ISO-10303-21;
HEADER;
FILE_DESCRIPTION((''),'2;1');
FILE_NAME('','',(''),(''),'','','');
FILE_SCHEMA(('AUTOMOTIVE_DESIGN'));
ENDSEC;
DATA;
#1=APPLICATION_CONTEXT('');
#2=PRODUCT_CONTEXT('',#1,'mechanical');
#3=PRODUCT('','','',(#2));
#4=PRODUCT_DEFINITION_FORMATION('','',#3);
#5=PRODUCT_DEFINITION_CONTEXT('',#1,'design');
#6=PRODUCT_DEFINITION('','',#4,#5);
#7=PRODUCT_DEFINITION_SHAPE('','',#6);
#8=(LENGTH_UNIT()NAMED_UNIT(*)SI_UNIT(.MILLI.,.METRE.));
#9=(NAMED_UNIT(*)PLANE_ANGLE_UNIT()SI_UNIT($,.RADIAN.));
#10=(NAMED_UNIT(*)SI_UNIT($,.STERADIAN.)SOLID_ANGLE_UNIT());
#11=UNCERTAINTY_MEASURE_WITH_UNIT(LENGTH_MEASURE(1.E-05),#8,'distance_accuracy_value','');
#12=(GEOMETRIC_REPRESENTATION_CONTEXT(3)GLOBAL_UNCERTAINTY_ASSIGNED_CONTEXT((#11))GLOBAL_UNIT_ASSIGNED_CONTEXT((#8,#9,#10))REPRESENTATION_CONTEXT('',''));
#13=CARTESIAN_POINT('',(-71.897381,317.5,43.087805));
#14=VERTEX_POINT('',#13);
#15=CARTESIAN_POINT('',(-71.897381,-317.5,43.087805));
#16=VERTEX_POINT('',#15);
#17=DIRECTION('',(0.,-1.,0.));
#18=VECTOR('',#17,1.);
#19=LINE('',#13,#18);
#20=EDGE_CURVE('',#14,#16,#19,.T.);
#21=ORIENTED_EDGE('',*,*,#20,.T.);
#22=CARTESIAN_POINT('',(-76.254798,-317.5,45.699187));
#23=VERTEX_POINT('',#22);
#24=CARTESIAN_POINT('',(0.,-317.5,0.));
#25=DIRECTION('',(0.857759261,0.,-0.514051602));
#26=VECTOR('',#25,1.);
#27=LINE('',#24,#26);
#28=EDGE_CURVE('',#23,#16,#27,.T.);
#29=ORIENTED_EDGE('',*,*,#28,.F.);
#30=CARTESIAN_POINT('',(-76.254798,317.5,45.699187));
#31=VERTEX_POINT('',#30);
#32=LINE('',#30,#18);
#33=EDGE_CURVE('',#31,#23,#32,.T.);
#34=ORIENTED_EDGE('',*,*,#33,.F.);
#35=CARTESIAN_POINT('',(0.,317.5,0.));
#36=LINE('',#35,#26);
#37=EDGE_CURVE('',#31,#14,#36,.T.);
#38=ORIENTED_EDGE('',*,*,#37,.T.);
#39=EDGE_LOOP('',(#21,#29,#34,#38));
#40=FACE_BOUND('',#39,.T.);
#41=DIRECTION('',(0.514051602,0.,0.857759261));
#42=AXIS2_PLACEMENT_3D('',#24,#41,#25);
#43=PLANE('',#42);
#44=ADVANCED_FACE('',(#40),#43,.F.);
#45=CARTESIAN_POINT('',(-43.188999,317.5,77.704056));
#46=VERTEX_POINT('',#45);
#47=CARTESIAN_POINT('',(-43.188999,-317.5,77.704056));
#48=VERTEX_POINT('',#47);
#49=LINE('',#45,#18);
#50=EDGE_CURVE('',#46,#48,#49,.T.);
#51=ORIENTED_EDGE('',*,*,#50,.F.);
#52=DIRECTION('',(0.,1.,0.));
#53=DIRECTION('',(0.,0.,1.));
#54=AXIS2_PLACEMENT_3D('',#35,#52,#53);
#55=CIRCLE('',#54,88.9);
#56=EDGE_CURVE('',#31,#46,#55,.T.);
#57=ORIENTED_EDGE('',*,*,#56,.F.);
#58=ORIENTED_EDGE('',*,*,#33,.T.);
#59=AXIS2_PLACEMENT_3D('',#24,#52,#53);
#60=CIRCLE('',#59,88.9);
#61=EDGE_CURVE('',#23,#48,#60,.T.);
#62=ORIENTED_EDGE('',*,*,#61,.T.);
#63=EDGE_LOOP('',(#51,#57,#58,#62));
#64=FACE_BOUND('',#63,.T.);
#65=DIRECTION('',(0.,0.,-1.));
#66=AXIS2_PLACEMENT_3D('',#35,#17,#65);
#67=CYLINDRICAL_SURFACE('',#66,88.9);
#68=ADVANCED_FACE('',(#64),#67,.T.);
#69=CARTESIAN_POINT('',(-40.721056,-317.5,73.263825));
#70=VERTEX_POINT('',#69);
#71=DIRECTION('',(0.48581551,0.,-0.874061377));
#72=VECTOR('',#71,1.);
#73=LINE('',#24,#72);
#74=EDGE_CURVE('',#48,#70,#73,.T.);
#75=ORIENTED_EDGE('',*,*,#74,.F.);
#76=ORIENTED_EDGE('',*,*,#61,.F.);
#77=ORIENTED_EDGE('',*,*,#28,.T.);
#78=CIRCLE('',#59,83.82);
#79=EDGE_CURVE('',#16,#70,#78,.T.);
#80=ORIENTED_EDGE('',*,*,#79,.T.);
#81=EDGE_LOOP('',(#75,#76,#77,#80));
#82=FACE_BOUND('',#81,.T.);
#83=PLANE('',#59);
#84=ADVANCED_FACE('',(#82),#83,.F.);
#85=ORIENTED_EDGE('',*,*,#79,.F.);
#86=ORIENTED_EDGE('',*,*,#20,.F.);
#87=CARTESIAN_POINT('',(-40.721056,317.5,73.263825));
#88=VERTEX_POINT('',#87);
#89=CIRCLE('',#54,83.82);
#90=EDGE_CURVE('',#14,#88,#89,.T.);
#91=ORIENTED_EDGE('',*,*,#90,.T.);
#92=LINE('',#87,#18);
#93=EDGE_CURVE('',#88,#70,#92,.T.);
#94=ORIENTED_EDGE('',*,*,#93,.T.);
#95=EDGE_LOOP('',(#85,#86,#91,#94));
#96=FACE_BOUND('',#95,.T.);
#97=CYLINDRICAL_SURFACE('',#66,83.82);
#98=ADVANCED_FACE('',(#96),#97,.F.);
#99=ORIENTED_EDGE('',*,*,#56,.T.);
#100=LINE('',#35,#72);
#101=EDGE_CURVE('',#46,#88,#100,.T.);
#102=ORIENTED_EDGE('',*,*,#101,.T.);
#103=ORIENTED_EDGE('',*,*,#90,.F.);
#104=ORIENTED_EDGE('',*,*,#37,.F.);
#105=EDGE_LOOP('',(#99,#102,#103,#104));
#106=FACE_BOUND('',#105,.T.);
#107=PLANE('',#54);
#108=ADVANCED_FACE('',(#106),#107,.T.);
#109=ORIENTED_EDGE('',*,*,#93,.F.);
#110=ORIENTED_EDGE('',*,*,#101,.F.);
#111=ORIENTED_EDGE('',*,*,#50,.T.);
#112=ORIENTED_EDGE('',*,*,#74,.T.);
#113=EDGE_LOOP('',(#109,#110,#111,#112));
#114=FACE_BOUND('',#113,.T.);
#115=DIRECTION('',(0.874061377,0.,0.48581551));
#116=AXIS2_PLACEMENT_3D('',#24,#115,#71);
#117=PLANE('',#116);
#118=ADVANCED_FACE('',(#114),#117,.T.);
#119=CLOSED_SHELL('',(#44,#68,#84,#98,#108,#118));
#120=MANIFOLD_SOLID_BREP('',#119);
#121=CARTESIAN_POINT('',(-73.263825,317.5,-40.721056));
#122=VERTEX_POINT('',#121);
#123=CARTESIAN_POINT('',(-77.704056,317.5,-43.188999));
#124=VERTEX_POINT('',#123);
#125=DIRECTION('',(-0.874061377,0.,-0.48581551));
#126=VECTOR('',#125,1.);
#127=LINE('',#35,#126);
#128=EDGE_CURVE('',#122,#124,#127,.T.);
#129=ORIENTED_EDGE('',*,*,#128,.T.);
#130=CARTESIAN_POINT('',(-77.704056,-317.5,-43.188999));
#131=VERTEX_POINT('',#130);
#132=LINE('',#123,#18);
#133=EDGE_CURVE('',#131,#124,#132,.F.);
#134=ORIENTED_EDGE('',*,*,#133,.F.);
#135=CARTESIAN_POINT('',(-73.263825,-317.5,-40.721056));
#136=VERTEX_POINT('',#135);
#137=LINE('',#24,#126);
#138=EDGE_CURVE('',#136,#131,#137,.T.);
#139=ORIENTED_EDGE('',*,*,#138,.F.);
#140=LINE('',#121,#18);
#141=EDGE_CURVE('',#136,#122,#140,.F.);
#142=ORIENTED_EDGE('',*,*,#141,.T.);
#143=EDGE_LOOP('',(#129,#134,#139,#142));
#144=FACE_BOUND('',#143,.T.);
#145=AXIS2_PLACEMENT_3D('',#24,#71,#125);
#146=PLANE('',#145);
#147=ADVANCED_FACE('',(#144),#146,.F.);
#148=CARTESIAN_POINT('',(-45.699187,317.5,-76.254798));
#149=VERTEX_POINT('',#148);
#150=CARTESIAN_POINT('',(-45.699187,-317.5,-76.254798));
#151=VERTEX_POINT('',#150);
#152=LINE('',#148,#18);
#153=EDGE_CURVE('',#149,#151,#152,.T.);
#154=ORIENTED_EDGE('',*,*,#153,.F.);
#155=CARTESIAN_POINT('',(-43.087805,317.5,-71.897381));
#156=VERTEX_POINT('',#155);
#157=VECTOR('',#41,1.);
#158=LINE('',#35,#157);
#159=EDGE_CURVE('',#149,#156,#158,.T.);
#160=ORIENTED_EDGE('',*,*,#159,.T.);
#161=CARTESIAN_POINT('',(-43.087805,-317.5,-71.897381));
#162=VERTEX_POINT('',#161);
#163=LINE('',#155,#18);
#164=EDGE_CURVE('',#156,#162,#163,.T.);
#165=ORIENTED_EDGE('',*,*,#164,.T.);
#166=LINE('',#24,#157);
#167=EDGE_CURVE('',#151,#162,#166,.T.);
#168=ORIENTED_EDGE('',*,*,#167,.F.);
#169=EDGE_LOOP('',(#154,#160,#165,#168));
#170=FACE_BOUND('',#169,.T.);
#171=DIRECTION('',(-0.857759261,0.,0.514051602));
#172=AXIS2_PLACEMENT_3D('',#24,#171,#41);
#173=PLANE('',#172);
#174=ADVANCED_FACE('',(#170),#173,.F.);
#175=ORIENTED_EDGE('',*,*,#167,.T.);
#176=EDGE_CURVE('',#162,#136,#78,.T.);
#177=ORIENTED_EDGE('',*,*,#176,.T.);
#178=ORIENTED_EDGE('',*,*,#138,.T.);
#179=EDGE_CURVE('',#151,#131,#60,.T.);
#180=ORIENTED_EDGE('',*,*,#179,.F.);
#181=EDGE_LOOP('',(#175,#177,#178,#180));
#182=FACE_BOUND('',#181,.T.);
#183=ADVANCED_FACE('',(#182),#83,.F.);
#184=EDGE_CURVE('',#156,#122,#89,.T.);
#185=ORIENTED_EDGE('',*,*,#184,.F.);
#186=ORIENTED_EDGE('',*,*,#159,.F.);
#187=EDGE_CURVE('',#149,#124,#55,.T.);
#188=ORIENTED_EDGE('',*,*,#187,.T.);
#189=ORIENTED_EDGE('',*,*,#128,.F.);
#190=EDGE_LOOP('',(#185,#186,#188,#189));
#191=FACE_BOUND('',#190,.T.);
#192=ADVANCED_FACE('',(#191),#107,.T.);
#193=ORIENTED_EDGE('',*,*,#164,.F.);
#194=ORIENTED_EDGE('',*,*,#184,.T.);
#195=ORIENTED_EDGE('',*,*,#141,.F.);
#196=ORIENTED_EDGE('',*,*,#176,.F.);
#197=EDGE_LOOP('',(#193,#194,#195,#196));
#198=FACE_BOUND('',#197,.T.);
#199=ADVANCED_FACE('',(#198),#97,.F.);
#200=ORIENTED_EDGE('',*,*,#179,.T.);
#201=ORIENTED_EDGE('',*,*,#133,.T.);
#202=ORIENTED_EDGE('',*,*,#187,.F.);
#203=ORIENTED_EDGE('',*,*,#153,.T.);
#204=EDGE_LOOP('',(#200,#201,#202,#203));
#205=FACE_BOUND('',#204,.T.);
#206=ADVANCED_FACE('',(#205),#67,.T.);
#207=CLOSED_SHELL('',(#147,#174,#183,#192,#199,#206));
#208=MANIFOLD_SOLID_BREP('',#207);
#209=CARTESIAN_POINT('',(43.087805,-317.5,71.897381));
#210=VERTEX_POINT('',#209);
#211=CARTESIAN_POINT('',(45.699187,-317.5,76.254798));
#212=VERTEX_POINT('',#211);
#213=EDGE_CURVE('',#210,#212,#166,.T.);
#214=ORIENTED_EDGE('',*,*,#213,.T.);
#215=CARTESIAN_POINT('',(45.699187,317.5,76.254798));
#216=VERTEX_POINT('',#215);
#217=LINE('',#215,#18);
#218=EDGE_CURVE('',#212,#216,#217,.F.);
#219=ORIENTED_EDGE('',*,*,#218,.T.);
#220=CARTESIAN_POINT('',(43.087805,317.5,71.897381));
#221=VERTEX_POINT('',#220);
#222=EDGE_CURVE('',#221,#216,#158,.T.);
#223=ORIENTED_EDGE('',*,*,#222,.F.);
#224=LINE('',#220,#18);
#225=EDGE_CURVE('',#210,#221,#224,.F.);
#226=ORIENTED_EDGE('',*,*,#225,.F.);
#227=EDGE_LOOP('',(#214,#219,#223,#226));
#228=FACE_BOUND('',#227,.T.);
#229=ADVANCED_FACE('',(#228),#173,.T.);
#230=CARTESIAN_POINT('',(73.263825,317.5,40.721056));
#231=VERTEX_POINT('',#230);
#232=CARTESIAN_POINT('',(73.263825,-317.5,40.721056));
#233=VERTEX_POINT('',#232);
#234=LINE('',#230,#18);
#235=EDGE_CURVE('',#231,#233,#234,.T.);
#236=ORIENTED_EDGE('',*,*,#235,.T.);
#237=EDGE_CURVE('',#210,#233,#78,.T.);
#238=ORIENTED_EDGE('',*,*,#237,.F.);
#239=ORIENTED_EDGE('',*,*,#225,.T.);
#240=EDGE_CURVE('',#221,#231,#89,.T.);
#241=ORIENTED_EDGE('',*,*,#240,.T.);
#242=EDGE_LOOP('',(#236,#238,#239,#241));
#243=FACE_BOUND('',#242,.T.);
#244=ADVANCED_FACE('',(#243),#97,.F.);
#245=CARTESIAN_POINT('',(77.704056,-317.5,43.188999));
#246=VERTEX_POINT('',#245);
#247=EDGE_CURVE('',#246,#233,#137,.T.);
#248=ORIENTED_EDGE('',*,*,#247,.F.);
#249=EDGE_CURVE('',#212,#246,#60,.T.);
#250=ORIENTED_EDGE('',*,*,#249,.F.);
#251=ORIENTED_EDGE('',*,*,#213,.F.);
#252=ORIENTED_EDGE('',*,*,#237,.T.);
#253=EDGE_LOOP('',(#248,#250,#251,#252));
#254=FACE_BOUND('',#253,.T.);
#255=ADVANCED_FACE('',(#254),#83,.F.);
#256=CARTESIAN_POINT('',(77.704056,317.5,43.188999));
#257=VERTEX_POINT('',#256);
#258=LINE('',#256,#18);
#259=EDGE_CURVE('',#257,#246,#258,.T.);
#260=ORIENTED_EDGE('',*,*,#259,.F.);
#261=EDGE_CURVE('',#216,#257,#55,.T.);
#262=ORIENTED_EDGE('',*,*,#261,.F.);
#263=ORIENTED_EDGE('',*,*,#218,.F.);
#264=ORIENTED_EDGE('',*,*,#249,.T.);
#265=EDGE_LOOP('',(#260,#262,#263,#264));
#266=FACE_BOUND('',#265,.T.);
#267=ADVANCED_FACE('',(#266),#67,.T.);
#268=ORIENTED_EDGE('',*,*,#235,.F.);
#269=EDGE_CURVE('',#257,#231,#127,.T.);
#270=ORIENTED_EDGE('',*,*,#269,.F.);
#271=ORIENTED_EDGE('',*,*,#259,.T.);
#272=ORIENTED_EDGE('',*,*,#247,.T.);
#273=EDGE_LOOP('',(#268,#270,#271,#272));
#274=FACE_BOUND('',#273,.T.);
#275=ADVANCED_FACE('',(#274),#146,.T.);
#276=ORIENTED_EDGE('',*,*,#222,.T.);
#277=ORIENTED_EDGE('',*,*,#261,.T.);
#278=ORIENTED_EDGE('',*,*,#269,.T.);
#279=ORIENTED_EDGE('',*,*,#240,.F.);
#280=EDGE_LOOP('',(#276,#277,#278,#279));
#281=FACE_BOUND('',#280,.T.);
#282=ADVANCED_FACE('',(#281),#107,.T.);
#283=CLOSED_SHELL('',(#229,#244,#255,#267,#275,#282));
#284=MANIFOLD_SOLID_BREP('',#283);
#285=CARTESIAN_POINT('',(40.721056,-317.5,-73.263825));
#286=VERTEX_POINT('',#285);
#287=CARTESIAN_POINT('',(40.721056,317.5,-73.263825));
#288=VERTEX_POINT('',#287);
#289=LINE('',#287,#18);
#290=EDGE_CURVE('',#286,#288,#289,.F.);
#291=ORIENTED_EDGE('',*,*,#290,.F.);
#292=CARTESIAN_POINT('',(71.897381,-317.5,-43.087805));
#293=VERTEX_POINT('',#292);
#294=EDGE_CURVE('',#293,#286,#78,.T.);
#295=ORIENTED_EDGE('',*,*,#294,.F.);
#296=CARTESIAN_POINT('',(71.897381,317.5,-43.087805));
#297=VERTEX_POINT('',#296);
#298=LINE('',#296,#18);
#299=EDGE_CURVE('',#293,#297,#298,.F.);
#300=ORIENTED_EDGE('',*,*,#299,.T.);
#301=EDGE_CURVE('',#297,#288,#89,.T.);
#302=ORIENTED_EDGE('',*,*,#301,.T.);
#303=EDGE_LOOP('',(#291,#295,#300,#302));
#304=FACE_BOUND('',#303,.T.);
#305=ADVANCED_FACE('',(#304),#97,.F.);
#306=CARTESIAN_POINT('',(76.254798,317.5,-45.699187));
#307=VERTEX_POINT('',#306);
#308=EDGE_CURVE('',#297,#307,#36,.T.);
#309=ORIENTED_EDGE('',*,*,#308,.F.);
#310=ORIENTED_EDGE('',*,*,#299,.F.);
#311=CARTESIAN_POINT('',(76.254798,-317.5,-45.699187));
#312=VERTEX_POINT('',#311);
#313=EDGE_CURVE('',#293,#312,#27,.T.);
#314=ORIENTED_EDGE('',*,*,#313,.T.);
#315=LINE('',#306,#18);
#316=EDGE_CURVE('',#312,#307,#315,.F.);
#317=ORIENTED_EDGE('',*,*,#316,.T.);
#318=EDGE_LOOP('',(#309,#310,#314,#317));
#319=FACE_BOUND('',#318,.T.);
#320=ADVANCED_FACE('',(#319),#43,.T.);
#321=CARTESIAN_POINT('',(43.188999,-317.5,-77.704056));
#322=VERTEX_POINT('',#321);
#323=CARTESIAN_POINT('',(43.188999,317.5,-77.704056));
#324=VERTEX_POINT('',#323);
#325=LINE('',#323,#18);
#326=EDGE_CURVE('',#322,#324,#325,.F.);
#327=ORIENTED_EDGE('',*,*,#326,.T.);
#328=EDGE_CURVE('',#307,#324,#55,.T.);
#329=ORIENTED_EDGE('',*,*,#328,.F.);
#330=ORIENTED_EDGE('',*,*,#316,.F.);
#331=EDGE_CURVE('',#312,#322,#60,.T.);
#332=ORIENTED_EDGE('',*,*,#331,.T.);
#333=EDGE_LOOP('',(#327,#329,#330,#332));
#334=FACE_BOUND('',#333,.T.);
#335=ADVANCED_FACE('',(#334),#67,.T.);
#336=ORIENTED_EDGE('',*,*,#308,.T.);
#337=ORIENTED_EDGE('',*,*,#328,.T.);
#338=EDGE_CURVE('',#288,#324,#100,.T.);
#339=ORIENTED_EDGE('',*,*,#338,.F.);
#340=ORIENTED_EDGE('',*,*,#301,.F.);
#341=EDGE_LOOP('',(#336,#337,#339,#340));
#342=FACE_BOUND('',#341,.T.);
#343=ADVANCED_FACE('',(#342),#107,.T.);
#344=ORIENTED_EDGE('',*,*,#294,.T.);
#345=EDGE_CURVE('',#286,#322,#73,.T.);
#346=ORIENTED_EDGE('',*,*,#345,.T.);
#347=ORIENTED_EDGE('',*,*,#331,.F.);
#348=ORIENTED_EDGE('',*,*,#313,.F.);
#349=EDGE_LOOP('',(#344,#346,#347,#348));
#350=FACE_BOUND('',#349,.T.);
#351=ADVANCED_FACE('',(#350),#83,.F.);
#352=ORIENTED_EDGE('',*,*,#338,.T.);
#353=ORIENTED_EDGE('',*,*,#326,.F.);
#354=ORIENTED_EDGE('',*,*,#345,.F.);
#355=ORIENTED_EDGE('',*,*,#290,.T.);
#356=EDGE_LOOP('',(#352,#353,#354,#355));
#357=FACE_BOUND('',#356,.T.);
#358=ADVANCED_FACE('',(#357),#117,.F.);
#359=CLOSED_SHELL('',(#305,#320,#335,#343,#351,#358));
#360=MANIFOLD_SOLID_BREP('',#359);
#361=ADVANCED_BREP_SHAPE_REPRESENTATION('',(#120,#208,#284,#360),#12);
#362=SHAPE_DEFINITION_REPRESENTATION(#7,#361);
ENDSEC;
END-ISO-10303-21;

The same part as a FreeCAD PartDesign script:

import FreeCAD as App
import Part
import Sketcher
Q = App.Units.Quantity

doc = App.newDocument("Part")
body = doc.addObject("PartDesign::Body", "Body")
body.AllowCompound = True

# Sketch on XZ plane
sketch1 = body.newObject("Sketcher::SketchObject", "Sketch")
sketch1.AttachmentSupport = (doc.getObject("XZ_Plane"), [""])
sketch1.MapMode = "FlatFace"
sketch1.addGeometry([
    Part.Circle(App.Vector(0, 0, 0), App.Vector(0, 0, 1), 88.9),
    Part.Circle(App.Vector(0, 0, 0), App.Vector(0, 0, 1), 83.82),
], False)
sketch1.addConstraint([
    Sketcher.Constraint("Coincident", 0, 3, -1, 1),
    Sketcher.Constraint("Coincident", 1, 3, -1, 1),
    Sketcher.Constraint("Diameter", 0, Q("7 in")),
    Sketcher.Constraint("Diameter", 1, Q("6.6 in")),
])
pad1 = body.newObject("PartDesign::Pad", "Pad")
pad1.Profile = sketch1
pad1.Length = Q("25 in")
pad1.Midplane = True

# Sketch on XZ plane
sketch2 = body.newObject("Sketcher::SketchObject", "Sketch001")
sketch2.AttachmentSupport = (doc.getObject("XZ_Plane"), [""])
sketch2.MapMode = "FlatFace"
sketch2.addGeometry([
    Part.LineSegment(App.Vector(0, 0, 0), App.Vector(169.661756, 94.300371, 0)),  # 0
    Part.LineSegment(App.Vector(169.661756, 94.300371, 0), App.Vector(169.661756, -101.677593, 0)),  # 1
    Part.LineSegment(App.Vector(169.661756, -101.677593, 0), App.Vector(0, 0, 0)),  # 2
    Part.LineSegment(App.Vector(0, 0, 0), App.Vector(53.900027, -96.974944, 0)),  # 3
    Part.LineSegment(App.Vector(53.900027, -96.974944, 0), App.Vector(-58.116686, -96.974944, 0)),  # 4
    Part.LineSegment(App.Vector(-58.116686, -96.974944, 0), App.Vector(0, 0, 0)),  # 5
    Part.LineSegment(App.Vector(-123.7413, -68.777141, 0), App.Vector(-123.7413, 74.157653, 0)),  # 6
    Part.LineSegment(App.Vector(-123.7413, 74.157653, 0), App.Vector(0, 0, 0)),  # 7
    Part.LineSegment(App.Vector(0, 0, 0), App.Vector(-123.7413, -68.777141, 0)),  # 8
    Part.LineSegment(App.Vector(0, 0, 0), App.Vector(-65.840936, 118.458588, 0)),  # 9
    Part.LineSegment(App.Vector(-65.840936, 118.458588, 0), App.Vector(70.991745, 118.458588, 0)),  # 10
    Part.LineSegment(App.Vector(70.991745, 118.458588, 0), App.Vector(0, 0, 0)),  # 11
], False)
sketch2.addConstraint([
    Sketcher.Constraint("Coincident", 0, 2, 1, 1),
    Sketcher.Constraint("Coincident", 1, 2, 2, 1),
    Sketcher.Constraint("Coincident", 2, 2, 0, 1),
    Sketcher.Constraint("Coincident", 3, 2, 4, 1),
    Sketcher.Constraint("Coincident", 4, 2, 5, 1),
    Sketcher.Constraint("Coincident", 5, 2, 3, 1),
    Sketcher.Constraint("Coincident", 6, 2, 7, 1),
    Sketcher.Constraint("Coincident", 7, 2, 8, 1),
    Sketcher.Constraint("Coincident", 8, 2, 6, 1),
    Sketcher.Constraint("Coincident", 9, 2, 10, 1),
    Sketcher.Constraint("Coincident", 10, 2, 11, 1),
    Sketcher.Constraint("Coincident", 11, 2, 9, 1),
    Sketcher.Constraint("Vertical", 1),
    Sketcher.Constraint("Horizontal", 4),
    Sketcher.Constraint("Vertical", 6),
    Sketcher.Constraint("Horizontal", 10),
    Sketcher.Constraint("Coincident", 2, 2, -1, 1),
    Sketcher.Constraint("Coincident", 5, 2, -1, 1),
    Sketcher.Constraint("Coincident", 7, 2, -1, 1),
    Sketcher.Constraint("Coincident", 11, 2, -1, 1),
    Sketcher.Constraint("Perpendicular", 0, 3),
    Sketcher.Constraint("Perpendicular", 2, 5),
    Sketcher.Constraint("Perpendicular", 5, 7),
    Sketcher.Constraint("Perpendicular", 3, 8),
    Sketcher.Constraint("Perpendicular", 8, 9),
    Sketcher.Constraint("Perpendicular", 7, 11),
    Sketcher.Constraint("DistanceX", 10, 1, 10, 2, Q("136.832681 mm")),
    Sketcher.Constraint("DistanceX", 6, 2, -1, 1, Q("123.7413 mm")),
    Sketcher.Constraint("Distance", 0, Q("194.107371 mm")),
    Sketcher.Constraint("Distance", 11, Q("138.102371 mm")),
    Sketcher.Constraint("DistanceX", 4, 2, 4, 1, Q("112.016713 mm")),
    Sketcher.Constraint("DistanceY", 1, 2, 1, 1, Q("195.977965 mm")),
])
pocket1 = body.newObject("PartDesign::Pocket", "Pocket")
pocket1.Profile = sketch2
pocket1.Type = "ThroughAll"
pocket1.Midplane = True

doc.recompute()
